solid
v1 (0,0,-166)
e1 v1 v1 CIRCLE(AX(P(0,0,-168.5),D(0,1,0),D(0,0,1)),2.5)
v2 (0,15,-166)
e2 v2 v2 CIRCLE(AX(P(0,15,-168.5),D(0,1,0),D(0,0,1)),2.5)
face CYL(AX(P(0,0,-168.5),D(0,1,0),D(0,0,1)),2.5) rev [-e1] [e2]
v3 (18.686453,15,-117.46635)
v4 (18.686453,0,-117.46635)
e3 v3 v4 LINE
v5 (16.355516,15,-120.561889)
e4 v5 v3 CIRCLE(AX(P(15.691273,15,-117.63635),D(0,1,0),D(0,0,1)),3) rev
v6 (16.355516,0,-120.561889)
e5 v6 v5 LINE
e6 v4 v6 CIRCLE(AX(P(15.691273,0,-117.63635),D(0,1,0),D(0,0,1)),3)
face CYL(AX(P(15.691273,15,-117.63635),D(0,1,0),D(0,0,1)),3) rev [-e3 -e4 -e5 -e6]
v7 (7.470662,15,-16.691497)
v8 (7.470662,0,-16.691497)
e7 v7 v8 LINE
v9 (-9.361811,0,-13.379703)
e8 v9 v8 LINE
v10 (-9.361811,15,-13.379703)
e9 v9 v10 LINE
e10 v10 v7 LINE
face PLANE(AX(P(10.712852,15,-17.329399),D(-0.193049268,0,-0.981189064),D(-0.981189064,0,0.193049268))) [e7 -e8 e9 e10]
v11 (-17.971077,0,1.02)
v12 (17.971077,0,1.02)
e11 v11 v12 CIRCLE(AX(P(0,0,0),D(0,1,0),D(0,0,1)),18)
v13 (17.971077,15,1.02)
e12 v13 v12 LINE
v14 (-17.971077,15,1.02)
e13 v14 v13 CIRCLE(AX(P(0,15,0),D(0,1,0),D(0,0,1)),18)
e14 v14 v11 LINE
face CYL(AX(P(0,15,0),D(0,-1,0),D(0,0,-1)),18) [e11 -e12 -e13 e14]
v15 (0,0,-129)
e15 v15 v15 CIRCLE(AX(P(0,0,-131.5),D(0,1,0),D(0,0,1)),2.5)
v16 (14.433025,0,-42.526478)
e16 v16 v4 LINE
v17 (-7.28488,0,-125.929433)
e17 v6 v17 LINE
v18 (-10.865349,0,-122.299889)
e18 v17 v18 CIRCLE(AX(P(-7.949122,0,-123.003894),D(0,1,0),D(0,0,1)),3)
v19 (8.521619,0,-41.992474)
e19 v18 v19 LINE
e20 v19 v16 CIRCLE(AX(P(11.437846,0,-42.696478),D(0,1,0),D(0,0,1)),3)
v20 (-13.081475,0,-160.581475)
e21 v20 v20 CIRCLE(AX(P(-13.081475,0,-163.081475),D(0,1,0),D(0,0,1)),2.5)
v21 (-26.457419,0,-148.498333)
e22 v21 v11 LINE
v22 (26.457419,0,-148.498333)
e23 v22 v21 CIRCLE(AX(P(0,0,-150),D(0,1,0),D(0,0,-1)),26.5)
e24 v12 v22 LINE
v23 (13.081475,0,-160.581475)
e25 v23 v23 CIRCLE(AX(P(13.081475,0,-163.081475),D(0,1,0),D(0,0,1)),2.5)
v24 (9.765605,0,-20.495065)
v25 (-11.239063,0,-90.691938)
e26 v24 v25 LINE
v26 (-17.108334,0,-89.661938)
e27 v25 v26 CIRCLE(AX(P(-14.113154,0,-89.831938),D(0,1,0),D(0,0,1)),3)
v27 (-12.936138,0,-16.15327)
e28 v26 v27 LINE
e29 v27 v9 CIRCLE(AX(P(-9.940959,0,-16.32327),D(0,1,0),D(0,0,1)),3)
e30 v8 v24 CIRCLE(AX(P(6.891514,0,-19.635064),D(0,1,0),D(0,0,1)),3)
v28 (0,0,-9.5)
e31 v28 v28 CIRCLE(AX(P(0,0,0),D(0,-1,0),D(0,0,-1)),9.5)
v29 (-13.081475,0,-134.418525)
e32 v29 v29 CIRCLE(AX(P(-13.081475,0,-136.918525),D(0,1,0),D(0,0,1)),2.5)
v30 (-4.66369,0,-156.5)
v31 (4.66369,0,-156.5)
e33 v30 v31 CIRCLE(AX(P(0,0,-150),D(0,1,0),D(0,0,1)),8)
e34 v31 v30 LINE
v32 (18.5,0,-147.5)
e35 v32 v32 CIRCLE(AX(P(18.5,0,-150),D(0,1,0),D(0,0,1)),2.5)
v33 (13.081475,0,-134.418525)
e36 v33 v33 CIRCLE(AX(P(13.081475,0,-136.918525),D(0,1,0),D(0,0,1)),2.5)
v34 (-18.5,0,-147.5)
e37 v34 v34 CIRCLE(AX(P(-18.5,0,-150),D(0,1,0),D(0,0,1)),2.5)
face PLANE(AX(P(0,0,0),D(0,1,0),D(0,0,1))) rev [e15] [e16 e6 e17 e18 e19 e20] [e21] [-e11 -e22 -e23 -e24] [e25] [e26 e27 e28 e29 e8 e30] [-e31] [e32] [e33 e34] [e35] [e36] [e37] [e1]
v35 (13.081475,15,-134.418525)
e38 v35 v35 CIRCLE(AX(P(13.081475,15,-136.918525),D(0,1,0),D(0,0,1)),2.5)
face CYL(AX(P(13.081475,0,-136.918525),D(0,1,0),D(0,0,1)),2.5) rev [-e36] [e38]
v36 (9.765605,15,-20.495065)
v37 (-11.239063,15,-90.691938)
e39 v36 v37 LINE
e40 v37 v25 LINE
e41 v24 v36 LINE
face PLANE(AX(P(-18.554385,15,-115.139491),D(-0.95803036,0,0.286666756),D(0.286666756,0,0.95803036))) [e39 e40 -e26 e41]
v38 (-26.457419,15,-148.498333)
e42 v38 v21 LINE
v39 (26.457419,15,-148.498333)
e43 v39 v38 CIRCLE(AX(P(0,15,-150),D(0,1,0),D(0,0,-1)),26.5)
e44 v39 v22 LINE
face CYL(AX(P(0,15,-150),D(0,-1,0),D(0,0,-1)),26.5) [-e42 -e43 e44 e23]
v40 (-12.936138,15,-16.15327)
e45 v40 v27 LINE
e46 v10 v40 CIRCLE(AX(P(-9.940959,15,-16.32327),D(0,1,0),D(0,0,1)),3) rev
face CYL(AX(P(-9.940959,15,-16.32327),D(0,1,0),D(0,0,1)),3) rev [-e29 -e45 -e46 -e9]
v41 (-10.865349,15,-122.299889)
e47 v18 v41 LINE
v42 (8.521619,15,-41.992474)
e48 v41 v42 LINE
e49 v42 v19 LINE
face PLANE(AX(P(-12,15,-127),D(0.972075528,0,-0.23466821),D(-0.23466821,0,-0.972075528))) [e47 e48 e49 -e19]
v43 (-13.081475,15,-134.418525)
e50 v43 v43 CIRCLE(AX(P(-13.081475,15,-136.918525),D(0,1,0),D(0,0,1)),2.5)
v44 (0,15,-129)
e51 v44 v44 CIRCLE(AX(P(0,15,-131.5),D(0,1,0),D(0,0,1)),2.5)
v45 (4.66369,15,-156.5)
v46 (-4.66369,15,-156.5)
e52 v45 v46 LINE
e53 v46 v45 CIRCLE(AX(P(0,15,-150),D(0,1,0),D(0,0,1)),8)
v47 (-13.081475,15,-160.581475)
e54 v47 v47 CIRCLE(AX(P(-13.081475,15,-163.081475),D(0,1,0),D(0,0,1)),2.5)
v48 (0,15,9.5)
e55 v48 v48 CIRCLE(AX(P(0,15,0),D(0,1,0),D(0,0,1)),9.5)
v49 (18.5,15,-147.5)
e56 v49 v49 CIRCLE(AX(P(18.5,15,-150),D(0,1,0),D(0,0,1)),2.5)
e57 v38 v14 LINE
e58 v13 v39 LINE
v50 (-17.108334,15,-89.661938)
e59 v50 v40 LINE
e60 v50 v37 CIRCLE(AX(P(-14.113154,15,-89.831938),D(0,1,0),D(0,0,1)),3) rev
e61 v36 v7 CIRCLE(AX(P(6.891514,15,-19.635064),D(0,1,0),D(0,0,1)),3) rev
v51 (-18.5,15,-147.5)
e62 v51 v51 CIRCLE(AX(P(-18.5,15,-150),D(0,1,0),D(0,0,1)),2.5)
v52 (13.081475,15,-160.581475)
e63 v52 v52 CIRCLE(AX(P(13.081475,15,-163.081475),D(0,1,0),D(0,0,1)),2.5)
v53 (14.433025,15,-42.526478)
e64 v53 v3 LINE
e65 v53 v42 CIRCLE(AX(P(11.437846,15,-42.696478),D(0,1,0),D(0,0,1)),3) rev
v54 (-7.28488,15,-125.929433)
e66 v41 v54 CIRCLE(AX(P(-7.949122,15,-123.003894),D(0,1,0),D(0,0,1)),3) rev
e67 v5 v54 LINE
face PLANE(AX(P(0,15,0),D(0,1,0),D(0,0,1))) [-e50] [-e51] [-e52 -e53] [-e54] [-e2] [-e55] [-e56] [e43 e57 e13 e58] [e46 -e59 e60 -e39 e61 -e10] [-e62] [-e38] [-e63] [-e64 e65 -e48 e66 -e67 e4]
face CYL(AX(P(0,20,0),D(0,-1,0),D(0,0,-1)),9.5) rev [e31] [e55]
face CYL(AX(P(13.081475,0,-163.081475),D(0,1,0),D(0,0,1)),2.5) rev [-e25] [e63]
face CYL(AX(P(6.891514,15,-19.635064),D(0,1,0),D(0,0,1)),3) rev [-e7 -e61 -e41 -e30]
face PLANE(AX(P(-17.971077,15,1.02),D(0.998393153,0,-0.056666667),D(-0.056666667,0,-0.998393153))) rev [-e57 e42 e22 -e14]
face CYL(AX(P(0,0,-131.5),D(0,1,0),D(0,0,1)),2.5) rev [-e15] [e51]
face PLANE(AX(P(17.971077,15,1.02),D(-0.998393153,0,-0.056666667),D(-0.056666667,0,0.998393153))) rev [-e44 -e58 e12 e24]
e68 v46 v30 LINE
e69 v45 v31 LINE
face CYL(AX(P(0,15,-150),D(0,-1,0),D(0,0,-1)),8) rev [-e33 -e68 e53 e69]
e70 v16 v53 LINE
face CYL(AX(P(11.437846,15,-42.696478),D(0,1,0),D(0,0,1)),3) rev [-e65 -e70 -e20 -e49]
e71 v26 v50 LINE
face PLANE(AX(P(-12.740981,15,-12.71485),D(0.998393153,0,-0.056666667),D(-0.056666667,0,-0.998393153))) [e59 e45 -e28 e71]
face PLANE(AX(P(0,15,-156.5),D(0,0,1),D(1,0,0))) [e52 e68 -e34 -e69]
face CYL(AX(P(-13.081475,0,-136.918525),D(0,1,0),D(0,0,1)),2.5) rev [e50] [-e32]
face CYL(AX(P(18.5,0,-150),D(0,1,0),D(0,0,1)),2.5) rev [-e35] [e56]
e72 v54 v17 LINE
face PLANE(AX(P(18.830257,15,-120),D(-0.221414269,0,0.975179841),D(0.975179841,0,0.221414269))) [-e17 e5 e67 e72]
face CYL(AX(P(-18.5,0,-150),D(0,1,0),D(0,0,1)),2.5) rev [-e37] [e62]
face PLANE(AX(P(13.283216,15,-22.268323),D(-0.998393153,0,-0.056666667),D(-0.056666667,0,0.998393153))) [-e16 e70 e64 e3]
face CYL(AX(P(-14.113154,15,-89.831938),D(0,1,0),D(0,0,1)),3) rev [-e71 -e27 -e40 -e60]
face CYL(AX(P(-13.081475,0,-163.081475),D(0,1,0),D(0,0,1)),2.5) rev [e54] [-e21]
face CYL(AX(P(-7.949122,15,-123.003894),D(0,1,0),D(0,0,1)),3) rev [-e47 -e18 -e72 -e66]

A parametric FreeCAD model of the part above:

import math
import FreeCAD as App
import Part
import Sketcher

V = App.Vector
Q = App.Units.Quantity


def edges_at(feature, points):
    """Names of the edges that pass closest to the given points."""
    edges = feature.Shape.Edges
    near = lambda p: min(range(len(edges)), key=lambda i: edges[i].distToShape(Part.Vertex(*p))[0])
    return sorted({f"Edge{near(p) + 1}" for p in points})


def add_polygon(sketch, points):
    """Adds a closed chain of lines whose ends are joined by coincident constraints."""
    first, n = sketch.GeometryCount, len(points)
    for a, b in zip(points, points[1:] + points[:1]):
        sketch.addGeometry(Part.LineSegment(App.Vector(*a, 0), App.Vector(*b, 0)), False)
    for i in range(n):
        sketch.addConstraint(Sketcher.Constraint("Coincident", first + i, 2, first + (i + 1) % n, 1))

doc = App.newDocument("Part")
body = doc.addObject("PartDesign::Body", "Body")

# Sketch on XZ plane
sketch1 = body.newObject("Sketcher::SketchObject", "Sketch")
sketch1.AttachmentSupport = (doc.getObject("XZ_Plane"), [""])
sketch1.MapMode = "FlatFace"
sketch1.addGeometry(Part.LineSegment(V(-26, -148, 0), V(-18, 1, 0)), False)  # 0
sketch1.addGeometry(Part.ArcOfCircle(Part.Circle(V(0, 0, 0), V(0, 0, 1), 18), math.radians(3), math.radians(177)), False)  # 1
sketch1.addGeometry(Part.LineSegment(V(18, 1, 0), V(26, -148, 0)), False)  # 2
sketch1.addGeometry(Part.ArcOfCircle(Part.Circle(V(0, -150, 0), V(0, 0, 1), 26), math.radians(177), math.radians(363)), False)  # 3
add_polygon(sketch1, [(13, -22), (-12, -127), (19, -120)])  # lines 4-6
sketch1.addGeometry(Part.Circle(V(0, 0, 0), V(0, 0, 1), 5), False)  # 7
add_polygon(sketch1, [(-13, -13), (-19, -115), (11, -17)])  # lines 8-10
sketch1.addGeometry(Part.ArcOfCircle(Part.Circle(V(0, -150, 0), V(0, 0, 1), 8), math.radians(-54), math.radians(234)), False)  # 11
sketch1.addGeometry(Part.LineSegment(V(-5, -156, 0), V(5, -156, 0)), False)  # 12
sketch1.addConstraint([
    Sketcher.Constraint("Tangent", 0, 2, 1, 2),
    Sketcher.Constraint("Tangent", 1, 1, 2, 1),
    Sketcher.Constraint("Tangent", 2, 2, 3, 2),
    Sketcher.Constraint("Tangent", 3, 1, 0, 1),
    Sketcher.Constraint("Coincident", 11, 1, 12, 2),
    Sketcher.Constraint("Coincident", 12, 1, 11, 2),
    Sketcher.Constraint("Horizontal", 12),
    Sketcher.Constraint("Coincident", 1, 3, -1, 1),
    Sketcher.Constraint("Coincident", 7, 3, -1, 1),
    Sketcher.Constraint("Coincident", 11, 3, 3, 3),
    Sketcher.Constraint("PointOnObject", 3, 3, -2),
    Sketcher.Constraint("Parallel", 2, 6),
    Sketcher.Constraint("Parallel", 0, 8),
    Sketcher.Constraint("Diameter", 7, Q("10 mm")),
    Sketcher.Constraint("Radius", 1, Q("18 mm")),
    Sketcher.Constraint("Radius", 11, Q("8 mm")),
    Sketcher.Constraint("Radius", 3, Q("26.5 mm")),
    Sketcher.Constraint("DistanceY", 3, 3, -1, 1, Q("150 mm")),
    Sketcher.Constraint("DistanceX", 4, 2, -1, 1, Q("12 mm")),
    Sketcher.Constraint("DistanceY", 4, 2, -1, 1, Q("127 mm")),
    Sketcher.Constraint("DistanceY", 5, 2, -1, 1, Q("120 mm")),
    Sketcher.Constraint("DistanceY", 11, 1, -1, 1, Q("156.5 mm")),
    Sketcher.Constraint("DistanceY", 9, 2, -1, 1, Q("17.329399 mm")),
    Sketcher.Constraint("Distance", 6, Q("97.88897 mm")),
    Sketcher.Constraint("Distance", 9, Q("102.094981 mm")),
    Sketcher.Constraint("Distance", 10, Q("23.90348 mm")),
    Sketcher.Constraint("DistanceY", 8, 2, -1, 1, Q("115.139491 mm")),
    Sketcher.Constraint("DistanceX", -1, 1, 9, 2, Q("10.712852 mm")),
    Sketcher.Constraint("DistanceX", 5, 2, 2, 2, Q("7.627161 mm")),
])
pad1 = body.newObject("PartDesign::Pad", "Pad")
pad1.Profile = sketch1
pad1.Length = 15
pad1.Reversed = True
doc.recompute()

fillet = body.newObject("PartDesign::Fillet", "Fillet")
fillet.Base = (pad1, edges_at(pad1, [
    (-12.741, 7.5, -12.715),
    (10.713, 7.5, -17.329),
    (-18.554, 7.5, -115.139),
    (18.83, 7.5, -120),
    (-12, 7.5, -127),
    (13.283, 7.5, -22.268),
]))
fillet.Radius = 3

# Sketch on XZ plane
sketch2 = body.newObject("Sketcher::SketchObject", "Sketch001")
sketch2.AttachmentSupport = (doc.getObject("XZ_Plane"), [""])
sketch2.MapMode = "FlatFace"
sketch2.AttachmentOffset = App.Placement(V(0, 0, -15), App.Rotation())
sketch2.addGeometry([
    Part.Circle(V(0, -168.5, 0), V(0, 0, 1), 2.5),  # 0
    Part.Circle(V(13.1, -163.1, 0), V(0, 0, 1), 2.5),  # 1
    Part.Circle(V(18.5, -150, 0), V(0, 0, 1), 2.5),  # 2
    Part.Circle(V(13.1, -136.9, 0), V(0, 0, 1), 2.5),  # 3
    Part.Circle(V(0, -131.5, 0), V(0, 0, 1), 2.5),  # 4
    Part.Circle(V(-13.1, -136.9, 0), V(0, 0, 1), 2.5),  # 5
    Part.Circle(V(-18.5, -150, 0), V(0, 0, 1), 2.5),  # 6
    Part.Circle(V(-13.1, -163.1, 0), V(0, 0, 1), 2.5),  # 7
], False)
sketch2.addConstraint([
    Sketcher.Constraint("Equal", 0, 1),
    Sketcher.Constraint("Equal", 1, 2),
    Sketcher.Constraint("Equal", 2, 3),
    Sketcher.Constraint("Equal", 3, 4),
    Sketcher.Constraint("Equal", 4, 5),
    Sketcher.Constraint("Equal", 5, 6),
    Sketcher.Constraint("Equal", 6, 7),
    Sketcher.Constraint("Symmetric", 3, 3, 5, 3, -2),
    Sketcher.Constraint("Symmetric", 2, 3, 6, 3, -2),
    Sketcher.Constraint("Symmetric", 1, 3, 7, 3, -2),
    Sketcher.Constraint("PointOnObject", 0, 3, -2),
    Sketcher.Constraint("PointOnObject", 4, 3, -2),
    Sketcher.Constraint("Vertical", 1, 3, 3, 3),
    Sketcher.Constraint("Diameter", 0, Q("5 mm")),
    Sketcher.Constraint("DistanceY", 2, 3, -1, 1, Q("150 mm")),
    Sketcher.Constraint("DistanceY", 0, 3, 4, 3, Q("37 mm")),
    Sketcher.Constraint("DistanceY", 0, 3, -1, 1, Q("168.5 mm")),
    Sketcher.Constraint("DistanceX", -1, 1, 2, 3, Q("18.5 mm")),
    Sketcher.Constraint("DistanceY", 1, 3, 3, 3, Q("26.162951 mm")),
    Sketcher.Constraint("DistanceX", 5, 3, 3, 3, Q("26.162951 mm")),
    Sketcher.Constraint("DistanceY", 1, 3, -1, 1, Q("163.081475 mm")),
])
pocket1 = body.newObject("PartDesign::Pocket", "Pocket")
pocket1.Profile = sketch2
pocket1.Type = "ThroughAll"
pocket1.Reversed = True

# Sketch on XZ plane
sketch3 = body.newObject("Sketcher::SketchObject", "Sketch002")
sketch3.AttachmentSupport = (doc.getObject("XZ_Plane"), [""])
sketch3.MapMode = "FlatFace"
sketch3.addGeometry(Part.Circle(V(0, 0, 0), V(0, 0, 1), 10), False)
sketch3.addConstraint([
    Sketcher.Constraint("Coincident", 0, 3, -1, 1),
    Sketcher.Constraint("Diameter", 0, Q("19 mm")),
])
pocket2 = body.newObject("PartDesign::Pocket", "Pocket001")
pocket2.Profile = sketch3
pocket2.Length = 20

doc.recompute()
